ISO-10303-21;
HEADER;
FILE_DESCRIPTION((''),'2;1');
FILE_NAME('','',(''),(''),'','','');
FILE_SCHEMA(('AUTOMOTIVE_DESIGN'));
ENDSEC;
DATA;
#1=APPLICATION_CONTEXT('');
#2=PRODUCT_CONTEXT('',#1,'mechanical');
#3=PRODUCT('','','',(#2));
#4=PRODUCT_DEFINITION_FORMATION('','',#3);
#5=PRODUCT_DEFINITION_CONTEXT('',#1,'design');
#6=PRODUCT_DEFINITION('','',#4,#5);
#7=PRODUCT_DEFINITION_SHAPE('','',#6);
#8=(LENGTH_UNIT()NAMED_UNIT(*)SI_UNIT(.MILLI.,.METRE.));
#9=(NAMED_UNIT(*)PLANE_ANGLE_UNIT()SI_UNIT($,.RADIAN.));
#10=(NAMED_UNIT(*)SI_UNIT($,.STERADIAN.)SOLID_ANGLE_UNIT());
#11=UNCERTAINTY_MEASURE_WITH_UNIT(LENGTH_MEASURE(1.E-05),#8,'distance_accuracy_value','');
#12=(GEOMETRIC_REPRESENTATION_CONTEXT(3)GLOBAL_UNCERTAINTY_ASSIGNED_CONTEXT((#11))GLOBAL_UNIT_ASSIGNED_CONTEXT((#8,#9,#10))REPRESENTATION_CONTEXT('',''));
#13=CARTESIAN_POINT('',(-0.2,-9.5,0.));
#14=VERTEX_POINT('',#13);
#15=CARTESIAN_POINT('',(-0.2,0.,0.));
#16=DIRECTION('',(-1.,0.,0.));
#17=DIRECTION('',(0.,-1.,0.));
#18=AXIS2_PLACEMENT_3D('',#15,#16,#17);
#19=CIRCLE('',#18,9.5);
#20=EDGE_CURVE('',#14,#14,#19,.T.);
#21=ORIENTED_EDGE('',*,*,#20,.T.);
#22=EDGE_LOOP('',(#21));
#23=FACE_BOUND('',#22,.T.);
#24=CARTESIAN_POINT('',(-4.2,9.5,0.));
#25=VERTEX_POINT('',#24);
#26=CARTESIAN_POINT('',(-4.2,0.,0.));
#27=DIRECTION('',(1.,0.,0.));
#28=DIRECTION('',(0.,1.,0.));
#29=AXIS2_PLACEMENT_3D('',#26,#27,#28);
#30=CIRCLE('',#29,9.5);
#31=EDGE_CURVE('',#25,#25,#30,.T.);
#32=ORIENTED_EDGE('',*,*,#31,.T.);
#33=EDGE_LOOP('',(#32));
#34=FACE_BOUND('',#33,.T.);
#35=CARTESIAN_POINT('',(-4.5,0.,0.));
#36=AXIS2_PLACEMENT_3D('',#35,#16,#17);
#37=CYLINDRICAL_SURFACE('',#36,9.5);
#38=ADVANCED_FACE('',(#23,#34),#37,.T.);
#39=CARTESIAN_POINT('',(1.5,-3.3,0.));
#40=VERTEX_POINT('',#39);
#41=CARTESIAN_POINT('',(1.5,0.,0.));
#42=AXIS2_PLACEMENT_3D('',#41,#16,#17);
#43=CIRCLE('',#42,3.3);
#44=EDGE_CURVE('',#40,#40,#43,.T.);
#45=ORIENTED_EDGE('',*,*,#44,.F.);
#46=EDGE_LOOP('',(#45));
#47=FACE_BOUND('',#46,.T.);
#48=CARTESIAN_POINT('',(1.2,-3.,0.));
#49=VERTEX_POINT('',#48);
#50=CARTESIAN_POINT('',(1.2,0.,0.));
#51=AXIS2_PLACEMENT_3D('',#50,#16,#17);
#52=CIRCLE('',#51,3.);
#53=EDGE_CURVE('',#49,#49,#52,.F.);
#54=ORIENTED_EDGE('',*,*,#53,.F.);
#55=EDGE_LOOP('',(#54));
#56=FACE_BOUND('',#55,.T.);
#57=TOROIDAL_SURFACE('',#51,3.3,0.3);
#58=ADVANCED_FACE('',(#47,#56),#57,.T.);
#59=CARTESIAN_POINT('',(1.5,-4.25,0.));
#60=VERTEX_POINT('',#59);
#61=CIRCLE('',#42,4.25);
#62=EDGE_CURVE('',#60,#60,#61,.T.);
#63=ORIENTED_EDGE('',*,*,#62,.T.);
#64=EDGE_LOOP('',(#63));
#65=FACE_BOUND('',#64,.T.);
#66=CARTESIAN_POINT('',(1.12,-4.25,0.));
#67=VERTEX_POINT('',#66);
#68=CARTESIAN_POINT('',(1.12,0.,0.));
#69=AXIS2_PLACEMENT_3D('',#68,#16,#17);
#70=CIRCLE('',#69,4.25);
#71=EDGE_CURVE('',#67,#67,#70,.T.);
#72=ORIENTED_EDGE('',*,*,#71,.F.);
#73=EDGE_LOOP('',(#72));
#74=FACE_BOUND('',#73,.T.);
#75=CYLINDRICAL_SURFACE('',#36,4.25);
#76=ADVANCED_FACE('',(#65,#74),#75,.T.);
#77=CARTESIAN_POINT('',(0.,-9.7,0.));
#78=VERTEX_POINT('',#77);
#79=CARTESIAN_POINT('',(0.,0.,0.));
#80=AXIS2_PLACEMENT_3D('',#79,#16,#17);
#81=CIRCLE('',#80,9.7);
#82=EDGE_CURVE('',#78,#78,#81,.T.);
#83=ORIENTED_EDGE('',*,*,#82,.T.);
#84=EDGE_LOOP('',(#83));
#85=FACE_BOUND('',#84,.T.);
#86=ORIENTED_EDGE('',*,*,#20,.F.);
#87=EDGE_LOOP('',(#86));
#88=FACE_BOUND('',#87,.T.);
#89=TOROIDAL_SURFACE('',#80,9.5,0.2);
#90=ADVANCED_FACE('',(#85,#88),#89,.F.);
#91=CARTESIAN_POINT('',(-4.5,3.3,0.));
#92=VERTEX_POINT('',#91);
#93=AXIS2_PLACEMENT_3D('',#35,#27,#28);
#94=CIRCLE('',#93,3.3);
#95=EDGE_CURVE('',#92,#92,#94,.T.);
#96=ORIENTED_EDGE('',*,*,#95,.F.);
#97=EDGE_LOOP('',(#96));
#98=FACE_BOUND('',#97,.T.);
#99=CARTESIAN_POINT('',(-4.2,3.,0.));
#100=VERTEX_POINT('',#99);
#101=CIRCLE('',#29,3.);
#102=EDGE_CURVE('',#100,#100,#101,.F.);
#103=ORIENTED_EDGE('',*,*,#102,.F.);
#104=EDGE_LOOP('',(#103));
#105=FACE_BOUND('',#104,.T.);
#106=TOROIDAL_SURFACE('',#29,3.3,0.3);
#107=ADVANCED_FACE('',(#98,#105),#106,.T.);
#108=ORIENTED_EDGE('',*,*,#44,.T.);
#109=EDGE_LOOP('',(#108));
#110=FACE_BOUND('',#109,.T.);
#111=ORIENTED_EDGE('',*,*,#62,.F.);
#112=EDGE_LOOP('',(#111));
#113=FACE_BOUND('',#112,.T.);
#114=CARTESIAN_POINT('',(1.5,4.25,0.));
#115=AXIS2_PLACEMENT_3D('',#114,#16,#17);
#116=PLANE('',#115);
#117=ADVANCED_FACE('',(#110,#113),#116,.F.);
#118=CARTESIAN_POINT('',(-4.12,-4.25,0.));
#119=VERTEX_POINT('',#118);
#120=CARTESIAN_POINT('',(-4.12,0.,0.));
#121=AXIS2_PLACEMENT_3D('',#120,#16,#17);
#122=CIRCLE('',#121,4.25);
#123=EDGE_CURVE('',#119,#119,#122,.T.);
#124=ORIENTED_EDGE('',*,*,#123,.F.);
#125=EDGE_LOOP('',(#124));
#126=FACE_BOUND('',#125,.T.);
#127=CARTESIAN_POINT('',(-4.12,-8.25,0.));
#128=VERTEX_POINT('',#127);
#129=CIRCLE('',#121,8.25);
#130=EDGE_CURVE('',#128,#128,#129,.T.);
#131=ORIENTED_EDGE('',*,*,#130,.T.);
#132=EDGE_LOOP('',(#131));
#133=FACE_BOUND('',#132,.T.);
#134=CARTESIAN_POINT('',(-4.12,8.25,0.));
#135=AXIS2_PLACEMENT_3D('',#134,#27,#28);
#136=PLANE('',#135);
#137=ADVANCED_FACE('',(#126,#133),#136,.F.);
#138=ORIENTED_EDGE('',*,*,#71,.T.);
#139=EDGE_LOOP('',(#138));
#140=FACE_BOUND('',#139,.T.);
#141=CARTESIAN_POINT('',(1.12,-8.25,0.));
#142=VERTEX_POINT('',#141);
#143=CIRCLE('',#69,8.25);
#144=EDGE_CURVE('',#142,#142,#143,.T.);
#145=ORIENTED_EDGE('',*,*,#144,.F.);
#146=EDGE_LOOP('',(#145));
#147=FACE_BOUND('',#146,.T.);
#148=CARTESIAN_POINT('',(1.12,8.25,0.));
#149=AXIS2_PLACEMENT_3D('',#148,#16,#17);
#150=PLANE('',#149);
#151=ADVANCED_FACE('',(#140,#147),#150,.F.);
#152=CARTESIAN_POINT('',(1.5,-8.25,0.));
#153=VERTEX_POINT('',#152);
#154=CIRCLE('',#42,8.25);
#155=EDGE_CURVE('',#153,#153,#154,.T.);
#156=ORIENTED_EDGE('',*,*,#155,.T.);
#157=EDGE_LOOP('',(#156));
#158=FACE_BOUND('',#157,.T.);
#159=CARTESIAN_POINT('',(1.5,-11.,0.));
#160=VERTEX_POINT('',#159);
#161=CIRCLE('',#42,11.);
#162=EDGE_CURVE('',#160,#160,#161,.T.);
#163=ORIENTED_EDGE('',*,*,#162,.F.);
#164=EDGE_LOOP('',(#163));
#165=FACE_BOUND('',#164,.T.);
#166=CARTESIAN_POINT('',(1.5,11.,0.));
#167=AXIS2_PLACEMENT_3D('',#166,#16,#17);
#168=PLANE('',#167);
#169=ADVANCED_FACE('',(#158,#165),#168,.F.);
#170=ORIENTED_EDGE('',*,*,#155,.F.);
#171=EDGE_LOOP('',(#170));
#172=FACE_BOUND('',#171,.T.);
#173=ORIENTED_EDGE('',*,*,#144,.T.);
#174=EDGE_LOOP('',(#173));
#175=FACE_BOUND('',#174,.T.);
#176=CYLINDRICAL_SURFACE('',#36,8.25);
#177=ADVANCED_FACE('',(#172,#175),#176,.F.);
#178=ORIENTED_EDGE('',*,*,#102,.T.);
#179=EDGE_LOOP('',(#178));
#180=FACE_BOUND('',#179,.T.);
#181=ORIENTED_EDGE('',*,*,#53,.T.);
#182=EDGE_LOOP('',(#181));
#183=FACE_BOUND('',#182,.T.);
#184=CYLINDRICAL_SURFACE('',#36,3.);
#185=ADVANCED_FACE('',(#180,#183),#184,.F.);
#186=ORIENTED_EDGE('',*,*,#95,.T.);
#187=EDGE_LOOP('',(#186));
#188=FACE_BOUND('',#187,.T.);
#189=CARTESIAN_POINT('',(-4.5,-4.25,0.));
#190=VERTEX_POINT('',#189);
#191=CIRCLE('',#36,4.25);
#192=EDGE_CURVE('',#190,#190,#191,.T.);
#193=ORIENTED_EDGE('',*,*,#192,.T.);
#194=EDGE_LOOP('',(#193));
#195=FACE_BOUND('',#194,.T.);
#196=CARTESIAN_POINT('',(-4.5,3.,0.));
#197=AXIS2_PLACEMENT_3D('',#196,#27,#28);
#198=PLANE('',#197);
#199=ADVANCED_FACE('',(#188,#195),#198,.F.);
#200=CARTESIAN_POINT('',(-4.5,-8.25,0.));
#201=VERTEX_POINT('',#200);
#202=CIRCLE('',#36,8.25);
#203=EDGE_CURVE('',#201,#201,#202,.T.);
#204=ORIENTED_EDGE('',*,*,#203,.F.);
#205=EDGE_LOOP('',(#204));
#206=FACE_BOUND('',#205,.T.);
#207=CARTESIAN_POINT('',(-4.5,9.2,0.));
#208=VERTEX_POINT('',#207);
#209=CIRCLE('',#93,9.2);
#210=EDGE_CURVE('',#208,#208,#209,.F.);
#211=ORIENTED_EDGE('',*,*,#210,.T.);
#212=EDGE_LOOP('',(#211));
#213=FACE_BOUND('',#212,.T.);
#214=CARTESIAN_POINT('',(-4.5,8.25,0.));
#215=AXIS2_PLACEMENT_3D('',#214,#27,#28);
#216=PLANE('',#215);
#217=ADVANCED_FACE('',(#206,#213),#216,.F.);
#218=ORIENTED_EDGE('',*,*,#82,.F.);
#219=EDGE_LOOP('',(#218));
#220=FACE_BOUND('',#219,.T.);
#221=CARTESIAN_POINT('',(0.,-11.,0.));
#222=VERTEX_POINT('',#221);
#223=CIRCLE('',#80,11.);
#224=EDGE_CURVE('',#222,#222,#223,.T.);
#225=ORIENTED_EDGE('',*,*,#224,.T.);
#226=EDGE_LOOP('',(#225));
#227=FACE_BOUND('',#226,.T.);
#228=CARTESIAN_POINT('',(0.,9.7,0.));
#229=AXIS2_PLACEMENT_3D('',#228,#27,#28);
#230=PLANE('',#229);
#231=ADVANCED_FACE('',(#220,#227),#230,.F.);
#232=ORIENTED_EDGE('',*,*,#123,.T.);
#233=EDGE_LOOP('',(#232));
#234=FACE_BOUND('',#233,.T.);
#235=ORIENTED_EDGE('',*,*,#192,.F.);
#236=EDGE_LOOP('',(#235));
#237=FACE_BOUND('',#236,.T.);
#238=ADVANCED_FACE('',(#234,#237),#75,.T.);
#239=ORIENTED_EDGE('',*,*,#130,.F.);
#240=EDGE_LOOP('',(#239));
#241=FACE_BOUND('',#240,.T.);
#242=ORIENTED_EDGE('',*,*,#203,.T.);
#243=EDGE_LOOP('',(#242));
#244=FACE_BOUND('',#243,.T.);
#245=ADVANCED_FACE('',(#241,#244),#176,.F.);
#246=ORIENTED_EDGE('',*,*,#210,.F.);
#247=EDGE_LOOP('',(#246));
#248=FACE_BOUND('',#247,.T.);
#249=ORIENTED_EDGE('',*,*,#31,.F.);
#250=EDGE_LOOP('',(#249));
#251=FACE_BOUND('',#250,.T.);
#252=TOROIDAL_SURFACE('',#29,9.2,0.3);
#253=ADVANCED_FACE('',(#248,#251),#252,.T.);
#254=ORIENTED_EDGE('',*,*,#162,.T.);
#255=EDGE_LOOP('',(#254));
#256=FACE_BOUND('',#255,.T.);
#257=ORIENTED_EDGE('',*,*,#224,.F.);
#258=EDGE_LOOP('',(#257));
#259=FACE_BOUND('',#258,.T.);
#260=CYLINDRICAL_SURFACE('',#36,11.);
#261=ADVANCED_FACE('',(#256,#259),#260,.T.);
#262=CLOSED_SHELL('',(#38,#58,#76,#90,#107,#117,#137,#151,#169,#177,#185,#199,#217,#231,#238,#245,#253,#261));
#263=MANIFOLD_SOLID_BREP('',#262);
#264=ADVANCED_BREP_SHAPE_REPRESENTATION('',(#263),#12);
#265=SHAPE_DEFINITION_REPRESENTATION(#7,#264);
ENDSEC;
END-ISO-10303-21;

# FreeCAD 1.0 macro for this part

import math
import FreeCAD as App
import Part
import Sketcher
from FreeCAD import Vector


def edges_at(feature, points):
    """Names of the edges that pass closest to the given points."""
    edges = feature.Shape.Edges
    near = lambda p: min(range(len(edges)), key=lambda i: edges[i].distToShape(Part.Vertex(*p))[0])
    return sorted({f"Edge{near(p) + 1}" for p in points})

doc = App.newDocument("Part")
body = doc.addObject("PartDesign::Body", "Body")

sketch1 = body.newObject("Sketcher::SketchObject", "Sketch")
sketch1.AttachmentSupport = (doc.getObject("XY_Plane"), [""])
sketch1.MapMode = "FlatFace"
sketch1.addGeometry([
    Part.LineSegment(Vector(0, 11, 0), Vector(0, 9.7, 0)),
    Part.ArcOfCircle(Part.Circle(Vector(0, 9.5, 0), Vector(0, 0, 1), 0.2), math.radians(180), math.radians(450)),
    Part.LineSegment(Vector(-0.2, 9.5, 0), Vector(-4.5, 9.5, 0)),
    Part.LineSegment(Vector(-4.5, 9.5, 0), Vector(-4.5, 8.25, 0)),
    Part.LineSegment(Vector(-4.5, 8.25, 0), Vector(-4.12, 8.25, 0)),
    Part.LineSegment(Vector(-4.12, 8.25, 0), Vector(-4.12, 4.25, 0)),
    Part.LineSegment(Vector(-4.12, 4.25, 0), Vector(-4.5, 4.25, 0)),
    Part.LineSegment(Vector(-4.5, 4.25, 0), Vector(-4.5, 3, 0)),
    Part.LineSegment(Vector(-4.5, 3, 0), Vector(1.5, 3, 0)),
    Part.LineSegment(Vector(1.5, 3, 0), Vector(1.5, 4.25, 0)),
    Part.LineSegment(Vector(1.5, 4.25, 0), Vector(1.12, 4.25, 0)),
    Part.LineSegment(Vector(1.12, 4.25, 0), Vector(1.12, 8.25, 0)),
    Part.LineSegment(Vector(1.12, 8.25, 0), Vector(1.5, 8.25, 0)),
    Part.LineSegment(Vector(1.5, 8.25, 0), Vector(1.5, 11, 0)),
    Part.LineSegment(Vector(1.5, 11, 0), Vector(0, 11, 0)),
], False)
sketch1.addConstraint([
    Sketcher.Constraint("Coincident", 0, 2, 1, 2),
    Sketcher.Constraint("Coincident", 1, 1, 2, 1),
    Sketcher.Constraint("Coincident", 2, 2, 3, 1),
    Sketcher.Constraint("Coincident", 3, 2, 4, 1),
    Sketcher.Constraint("Coincident", 4, 2, 5, 1),
    Sketcher.Constraint("Coincident", 5, 2, 6, 1),
    Sketcher.Constraint("Coincident", 6, 2, 7, 1),
    Sketcher.Constraint("Coincident", 7, 2, 8, 1),
    Sketcher.Constraint("Coincident", 8, 2, 9, 1),
    Sketcher.Constraint("Coincident", 9, 2, 10, 1),
    Sketcher.Constraint("Coincident", 10, 2, 11, 1),
    Sketcher.Constraint("Coincident", 11, 2, 12, 1),
    Sketcher.Constraint("Coincident", 12, 2, 13, 1),
    Sketcher.Constraint("Coincident", 13, 2, 14, 1),
    Sketcher.Constraint("Coincident", 14, 2, 0, 1),
    Sketcher.Constraint("Vertical", 0),
    Sketcher.Constraint("Horizontal", 2),
    Sketcher.Constraint("Vertical", 3),
    Sketcher.Constraint("Horizontal", 4),
    Sketcher.Constraint("Vertical", 5),
    Sketcher.Constraint("Horizontal", 6),
    Sketcher.Constraint("Vertical", 7),
    Sketcher.Constraint("Horizontal", 8),
    Sketcher.Constraint("Vertical", 9),
    Sketcher.Constraint("Horizontal", 10),
    Sketcher.Constraint("Vertical", 11),
    Sketcher.Constraint("Horizontal", 12),
    Sketcher.Constraint("Vertical", 13),
    Sketcher.Constraint("Horizontal", 14),
    Sketcher.Constraint("PointOnObject", 1, 3, -2),
    Sketcher.Constraint("PointOnObject", 0, 2, -2),
    Sketcher.Constraint("Horizontal", 6, 2, 9, 2),
    Sketcher.Constraint("Horizontal", 4, 2, 11, 2),
    Sketcher.Constraint("Vertical", 3, 2, 6, 2),
    Sketcher.Constraint("Vertical", 9, 2, 12, 2),
    Sketcher.Constraint("Equal", 6, 10),
    Sketcher.Constraint("Equal", 3, 7),
    Sketcher.Constraint("Radius", 1, 0.2),
    Sketcher.Constraint("DistanceX", 8, 1, 8, 2, 6.0),
    Sketcher.Constraint("DistanceY", 5, 2, 5, 1, 4.0),
    Sketcher.Constraint("DistanceX", 2, 2, 2, 1, 4.3),
    Sketcher.Constraint("DistanceY", 0, 2, 0, 1, 1.3),
    Sketcher.Constraint("DistanceY", -1, 1, 7, 2, 3.0),
    Sketcher.Constraint("DistanceY", -1, 1, 13, 2, 11.0),
    Sketcher.Constraint("DistanceX", 4, 1, 4, 2, 0.38),
    Sketcher.Constraint("DistanceY", 3, 2, 3, 1, 1.25),
])
revolution = body.newObject("PartDesign::Revolution", "Revolution")
revolution.Profile = sketch1
revolution.ReferenceAxis = (sketch1, ["H_Axis"])
revolution.Angle = 360
doc.recompute()

fillet = body.newObject("PartDesign::Fillet", "Fillet")
fillet.Base = (revolution, edges_at(revolution, [(1.5, -3, 0), (-4.5, -3, 0), (-4.5, -9.5, 0)]))
fillet.Radius = 0.3

doc.recompute()
